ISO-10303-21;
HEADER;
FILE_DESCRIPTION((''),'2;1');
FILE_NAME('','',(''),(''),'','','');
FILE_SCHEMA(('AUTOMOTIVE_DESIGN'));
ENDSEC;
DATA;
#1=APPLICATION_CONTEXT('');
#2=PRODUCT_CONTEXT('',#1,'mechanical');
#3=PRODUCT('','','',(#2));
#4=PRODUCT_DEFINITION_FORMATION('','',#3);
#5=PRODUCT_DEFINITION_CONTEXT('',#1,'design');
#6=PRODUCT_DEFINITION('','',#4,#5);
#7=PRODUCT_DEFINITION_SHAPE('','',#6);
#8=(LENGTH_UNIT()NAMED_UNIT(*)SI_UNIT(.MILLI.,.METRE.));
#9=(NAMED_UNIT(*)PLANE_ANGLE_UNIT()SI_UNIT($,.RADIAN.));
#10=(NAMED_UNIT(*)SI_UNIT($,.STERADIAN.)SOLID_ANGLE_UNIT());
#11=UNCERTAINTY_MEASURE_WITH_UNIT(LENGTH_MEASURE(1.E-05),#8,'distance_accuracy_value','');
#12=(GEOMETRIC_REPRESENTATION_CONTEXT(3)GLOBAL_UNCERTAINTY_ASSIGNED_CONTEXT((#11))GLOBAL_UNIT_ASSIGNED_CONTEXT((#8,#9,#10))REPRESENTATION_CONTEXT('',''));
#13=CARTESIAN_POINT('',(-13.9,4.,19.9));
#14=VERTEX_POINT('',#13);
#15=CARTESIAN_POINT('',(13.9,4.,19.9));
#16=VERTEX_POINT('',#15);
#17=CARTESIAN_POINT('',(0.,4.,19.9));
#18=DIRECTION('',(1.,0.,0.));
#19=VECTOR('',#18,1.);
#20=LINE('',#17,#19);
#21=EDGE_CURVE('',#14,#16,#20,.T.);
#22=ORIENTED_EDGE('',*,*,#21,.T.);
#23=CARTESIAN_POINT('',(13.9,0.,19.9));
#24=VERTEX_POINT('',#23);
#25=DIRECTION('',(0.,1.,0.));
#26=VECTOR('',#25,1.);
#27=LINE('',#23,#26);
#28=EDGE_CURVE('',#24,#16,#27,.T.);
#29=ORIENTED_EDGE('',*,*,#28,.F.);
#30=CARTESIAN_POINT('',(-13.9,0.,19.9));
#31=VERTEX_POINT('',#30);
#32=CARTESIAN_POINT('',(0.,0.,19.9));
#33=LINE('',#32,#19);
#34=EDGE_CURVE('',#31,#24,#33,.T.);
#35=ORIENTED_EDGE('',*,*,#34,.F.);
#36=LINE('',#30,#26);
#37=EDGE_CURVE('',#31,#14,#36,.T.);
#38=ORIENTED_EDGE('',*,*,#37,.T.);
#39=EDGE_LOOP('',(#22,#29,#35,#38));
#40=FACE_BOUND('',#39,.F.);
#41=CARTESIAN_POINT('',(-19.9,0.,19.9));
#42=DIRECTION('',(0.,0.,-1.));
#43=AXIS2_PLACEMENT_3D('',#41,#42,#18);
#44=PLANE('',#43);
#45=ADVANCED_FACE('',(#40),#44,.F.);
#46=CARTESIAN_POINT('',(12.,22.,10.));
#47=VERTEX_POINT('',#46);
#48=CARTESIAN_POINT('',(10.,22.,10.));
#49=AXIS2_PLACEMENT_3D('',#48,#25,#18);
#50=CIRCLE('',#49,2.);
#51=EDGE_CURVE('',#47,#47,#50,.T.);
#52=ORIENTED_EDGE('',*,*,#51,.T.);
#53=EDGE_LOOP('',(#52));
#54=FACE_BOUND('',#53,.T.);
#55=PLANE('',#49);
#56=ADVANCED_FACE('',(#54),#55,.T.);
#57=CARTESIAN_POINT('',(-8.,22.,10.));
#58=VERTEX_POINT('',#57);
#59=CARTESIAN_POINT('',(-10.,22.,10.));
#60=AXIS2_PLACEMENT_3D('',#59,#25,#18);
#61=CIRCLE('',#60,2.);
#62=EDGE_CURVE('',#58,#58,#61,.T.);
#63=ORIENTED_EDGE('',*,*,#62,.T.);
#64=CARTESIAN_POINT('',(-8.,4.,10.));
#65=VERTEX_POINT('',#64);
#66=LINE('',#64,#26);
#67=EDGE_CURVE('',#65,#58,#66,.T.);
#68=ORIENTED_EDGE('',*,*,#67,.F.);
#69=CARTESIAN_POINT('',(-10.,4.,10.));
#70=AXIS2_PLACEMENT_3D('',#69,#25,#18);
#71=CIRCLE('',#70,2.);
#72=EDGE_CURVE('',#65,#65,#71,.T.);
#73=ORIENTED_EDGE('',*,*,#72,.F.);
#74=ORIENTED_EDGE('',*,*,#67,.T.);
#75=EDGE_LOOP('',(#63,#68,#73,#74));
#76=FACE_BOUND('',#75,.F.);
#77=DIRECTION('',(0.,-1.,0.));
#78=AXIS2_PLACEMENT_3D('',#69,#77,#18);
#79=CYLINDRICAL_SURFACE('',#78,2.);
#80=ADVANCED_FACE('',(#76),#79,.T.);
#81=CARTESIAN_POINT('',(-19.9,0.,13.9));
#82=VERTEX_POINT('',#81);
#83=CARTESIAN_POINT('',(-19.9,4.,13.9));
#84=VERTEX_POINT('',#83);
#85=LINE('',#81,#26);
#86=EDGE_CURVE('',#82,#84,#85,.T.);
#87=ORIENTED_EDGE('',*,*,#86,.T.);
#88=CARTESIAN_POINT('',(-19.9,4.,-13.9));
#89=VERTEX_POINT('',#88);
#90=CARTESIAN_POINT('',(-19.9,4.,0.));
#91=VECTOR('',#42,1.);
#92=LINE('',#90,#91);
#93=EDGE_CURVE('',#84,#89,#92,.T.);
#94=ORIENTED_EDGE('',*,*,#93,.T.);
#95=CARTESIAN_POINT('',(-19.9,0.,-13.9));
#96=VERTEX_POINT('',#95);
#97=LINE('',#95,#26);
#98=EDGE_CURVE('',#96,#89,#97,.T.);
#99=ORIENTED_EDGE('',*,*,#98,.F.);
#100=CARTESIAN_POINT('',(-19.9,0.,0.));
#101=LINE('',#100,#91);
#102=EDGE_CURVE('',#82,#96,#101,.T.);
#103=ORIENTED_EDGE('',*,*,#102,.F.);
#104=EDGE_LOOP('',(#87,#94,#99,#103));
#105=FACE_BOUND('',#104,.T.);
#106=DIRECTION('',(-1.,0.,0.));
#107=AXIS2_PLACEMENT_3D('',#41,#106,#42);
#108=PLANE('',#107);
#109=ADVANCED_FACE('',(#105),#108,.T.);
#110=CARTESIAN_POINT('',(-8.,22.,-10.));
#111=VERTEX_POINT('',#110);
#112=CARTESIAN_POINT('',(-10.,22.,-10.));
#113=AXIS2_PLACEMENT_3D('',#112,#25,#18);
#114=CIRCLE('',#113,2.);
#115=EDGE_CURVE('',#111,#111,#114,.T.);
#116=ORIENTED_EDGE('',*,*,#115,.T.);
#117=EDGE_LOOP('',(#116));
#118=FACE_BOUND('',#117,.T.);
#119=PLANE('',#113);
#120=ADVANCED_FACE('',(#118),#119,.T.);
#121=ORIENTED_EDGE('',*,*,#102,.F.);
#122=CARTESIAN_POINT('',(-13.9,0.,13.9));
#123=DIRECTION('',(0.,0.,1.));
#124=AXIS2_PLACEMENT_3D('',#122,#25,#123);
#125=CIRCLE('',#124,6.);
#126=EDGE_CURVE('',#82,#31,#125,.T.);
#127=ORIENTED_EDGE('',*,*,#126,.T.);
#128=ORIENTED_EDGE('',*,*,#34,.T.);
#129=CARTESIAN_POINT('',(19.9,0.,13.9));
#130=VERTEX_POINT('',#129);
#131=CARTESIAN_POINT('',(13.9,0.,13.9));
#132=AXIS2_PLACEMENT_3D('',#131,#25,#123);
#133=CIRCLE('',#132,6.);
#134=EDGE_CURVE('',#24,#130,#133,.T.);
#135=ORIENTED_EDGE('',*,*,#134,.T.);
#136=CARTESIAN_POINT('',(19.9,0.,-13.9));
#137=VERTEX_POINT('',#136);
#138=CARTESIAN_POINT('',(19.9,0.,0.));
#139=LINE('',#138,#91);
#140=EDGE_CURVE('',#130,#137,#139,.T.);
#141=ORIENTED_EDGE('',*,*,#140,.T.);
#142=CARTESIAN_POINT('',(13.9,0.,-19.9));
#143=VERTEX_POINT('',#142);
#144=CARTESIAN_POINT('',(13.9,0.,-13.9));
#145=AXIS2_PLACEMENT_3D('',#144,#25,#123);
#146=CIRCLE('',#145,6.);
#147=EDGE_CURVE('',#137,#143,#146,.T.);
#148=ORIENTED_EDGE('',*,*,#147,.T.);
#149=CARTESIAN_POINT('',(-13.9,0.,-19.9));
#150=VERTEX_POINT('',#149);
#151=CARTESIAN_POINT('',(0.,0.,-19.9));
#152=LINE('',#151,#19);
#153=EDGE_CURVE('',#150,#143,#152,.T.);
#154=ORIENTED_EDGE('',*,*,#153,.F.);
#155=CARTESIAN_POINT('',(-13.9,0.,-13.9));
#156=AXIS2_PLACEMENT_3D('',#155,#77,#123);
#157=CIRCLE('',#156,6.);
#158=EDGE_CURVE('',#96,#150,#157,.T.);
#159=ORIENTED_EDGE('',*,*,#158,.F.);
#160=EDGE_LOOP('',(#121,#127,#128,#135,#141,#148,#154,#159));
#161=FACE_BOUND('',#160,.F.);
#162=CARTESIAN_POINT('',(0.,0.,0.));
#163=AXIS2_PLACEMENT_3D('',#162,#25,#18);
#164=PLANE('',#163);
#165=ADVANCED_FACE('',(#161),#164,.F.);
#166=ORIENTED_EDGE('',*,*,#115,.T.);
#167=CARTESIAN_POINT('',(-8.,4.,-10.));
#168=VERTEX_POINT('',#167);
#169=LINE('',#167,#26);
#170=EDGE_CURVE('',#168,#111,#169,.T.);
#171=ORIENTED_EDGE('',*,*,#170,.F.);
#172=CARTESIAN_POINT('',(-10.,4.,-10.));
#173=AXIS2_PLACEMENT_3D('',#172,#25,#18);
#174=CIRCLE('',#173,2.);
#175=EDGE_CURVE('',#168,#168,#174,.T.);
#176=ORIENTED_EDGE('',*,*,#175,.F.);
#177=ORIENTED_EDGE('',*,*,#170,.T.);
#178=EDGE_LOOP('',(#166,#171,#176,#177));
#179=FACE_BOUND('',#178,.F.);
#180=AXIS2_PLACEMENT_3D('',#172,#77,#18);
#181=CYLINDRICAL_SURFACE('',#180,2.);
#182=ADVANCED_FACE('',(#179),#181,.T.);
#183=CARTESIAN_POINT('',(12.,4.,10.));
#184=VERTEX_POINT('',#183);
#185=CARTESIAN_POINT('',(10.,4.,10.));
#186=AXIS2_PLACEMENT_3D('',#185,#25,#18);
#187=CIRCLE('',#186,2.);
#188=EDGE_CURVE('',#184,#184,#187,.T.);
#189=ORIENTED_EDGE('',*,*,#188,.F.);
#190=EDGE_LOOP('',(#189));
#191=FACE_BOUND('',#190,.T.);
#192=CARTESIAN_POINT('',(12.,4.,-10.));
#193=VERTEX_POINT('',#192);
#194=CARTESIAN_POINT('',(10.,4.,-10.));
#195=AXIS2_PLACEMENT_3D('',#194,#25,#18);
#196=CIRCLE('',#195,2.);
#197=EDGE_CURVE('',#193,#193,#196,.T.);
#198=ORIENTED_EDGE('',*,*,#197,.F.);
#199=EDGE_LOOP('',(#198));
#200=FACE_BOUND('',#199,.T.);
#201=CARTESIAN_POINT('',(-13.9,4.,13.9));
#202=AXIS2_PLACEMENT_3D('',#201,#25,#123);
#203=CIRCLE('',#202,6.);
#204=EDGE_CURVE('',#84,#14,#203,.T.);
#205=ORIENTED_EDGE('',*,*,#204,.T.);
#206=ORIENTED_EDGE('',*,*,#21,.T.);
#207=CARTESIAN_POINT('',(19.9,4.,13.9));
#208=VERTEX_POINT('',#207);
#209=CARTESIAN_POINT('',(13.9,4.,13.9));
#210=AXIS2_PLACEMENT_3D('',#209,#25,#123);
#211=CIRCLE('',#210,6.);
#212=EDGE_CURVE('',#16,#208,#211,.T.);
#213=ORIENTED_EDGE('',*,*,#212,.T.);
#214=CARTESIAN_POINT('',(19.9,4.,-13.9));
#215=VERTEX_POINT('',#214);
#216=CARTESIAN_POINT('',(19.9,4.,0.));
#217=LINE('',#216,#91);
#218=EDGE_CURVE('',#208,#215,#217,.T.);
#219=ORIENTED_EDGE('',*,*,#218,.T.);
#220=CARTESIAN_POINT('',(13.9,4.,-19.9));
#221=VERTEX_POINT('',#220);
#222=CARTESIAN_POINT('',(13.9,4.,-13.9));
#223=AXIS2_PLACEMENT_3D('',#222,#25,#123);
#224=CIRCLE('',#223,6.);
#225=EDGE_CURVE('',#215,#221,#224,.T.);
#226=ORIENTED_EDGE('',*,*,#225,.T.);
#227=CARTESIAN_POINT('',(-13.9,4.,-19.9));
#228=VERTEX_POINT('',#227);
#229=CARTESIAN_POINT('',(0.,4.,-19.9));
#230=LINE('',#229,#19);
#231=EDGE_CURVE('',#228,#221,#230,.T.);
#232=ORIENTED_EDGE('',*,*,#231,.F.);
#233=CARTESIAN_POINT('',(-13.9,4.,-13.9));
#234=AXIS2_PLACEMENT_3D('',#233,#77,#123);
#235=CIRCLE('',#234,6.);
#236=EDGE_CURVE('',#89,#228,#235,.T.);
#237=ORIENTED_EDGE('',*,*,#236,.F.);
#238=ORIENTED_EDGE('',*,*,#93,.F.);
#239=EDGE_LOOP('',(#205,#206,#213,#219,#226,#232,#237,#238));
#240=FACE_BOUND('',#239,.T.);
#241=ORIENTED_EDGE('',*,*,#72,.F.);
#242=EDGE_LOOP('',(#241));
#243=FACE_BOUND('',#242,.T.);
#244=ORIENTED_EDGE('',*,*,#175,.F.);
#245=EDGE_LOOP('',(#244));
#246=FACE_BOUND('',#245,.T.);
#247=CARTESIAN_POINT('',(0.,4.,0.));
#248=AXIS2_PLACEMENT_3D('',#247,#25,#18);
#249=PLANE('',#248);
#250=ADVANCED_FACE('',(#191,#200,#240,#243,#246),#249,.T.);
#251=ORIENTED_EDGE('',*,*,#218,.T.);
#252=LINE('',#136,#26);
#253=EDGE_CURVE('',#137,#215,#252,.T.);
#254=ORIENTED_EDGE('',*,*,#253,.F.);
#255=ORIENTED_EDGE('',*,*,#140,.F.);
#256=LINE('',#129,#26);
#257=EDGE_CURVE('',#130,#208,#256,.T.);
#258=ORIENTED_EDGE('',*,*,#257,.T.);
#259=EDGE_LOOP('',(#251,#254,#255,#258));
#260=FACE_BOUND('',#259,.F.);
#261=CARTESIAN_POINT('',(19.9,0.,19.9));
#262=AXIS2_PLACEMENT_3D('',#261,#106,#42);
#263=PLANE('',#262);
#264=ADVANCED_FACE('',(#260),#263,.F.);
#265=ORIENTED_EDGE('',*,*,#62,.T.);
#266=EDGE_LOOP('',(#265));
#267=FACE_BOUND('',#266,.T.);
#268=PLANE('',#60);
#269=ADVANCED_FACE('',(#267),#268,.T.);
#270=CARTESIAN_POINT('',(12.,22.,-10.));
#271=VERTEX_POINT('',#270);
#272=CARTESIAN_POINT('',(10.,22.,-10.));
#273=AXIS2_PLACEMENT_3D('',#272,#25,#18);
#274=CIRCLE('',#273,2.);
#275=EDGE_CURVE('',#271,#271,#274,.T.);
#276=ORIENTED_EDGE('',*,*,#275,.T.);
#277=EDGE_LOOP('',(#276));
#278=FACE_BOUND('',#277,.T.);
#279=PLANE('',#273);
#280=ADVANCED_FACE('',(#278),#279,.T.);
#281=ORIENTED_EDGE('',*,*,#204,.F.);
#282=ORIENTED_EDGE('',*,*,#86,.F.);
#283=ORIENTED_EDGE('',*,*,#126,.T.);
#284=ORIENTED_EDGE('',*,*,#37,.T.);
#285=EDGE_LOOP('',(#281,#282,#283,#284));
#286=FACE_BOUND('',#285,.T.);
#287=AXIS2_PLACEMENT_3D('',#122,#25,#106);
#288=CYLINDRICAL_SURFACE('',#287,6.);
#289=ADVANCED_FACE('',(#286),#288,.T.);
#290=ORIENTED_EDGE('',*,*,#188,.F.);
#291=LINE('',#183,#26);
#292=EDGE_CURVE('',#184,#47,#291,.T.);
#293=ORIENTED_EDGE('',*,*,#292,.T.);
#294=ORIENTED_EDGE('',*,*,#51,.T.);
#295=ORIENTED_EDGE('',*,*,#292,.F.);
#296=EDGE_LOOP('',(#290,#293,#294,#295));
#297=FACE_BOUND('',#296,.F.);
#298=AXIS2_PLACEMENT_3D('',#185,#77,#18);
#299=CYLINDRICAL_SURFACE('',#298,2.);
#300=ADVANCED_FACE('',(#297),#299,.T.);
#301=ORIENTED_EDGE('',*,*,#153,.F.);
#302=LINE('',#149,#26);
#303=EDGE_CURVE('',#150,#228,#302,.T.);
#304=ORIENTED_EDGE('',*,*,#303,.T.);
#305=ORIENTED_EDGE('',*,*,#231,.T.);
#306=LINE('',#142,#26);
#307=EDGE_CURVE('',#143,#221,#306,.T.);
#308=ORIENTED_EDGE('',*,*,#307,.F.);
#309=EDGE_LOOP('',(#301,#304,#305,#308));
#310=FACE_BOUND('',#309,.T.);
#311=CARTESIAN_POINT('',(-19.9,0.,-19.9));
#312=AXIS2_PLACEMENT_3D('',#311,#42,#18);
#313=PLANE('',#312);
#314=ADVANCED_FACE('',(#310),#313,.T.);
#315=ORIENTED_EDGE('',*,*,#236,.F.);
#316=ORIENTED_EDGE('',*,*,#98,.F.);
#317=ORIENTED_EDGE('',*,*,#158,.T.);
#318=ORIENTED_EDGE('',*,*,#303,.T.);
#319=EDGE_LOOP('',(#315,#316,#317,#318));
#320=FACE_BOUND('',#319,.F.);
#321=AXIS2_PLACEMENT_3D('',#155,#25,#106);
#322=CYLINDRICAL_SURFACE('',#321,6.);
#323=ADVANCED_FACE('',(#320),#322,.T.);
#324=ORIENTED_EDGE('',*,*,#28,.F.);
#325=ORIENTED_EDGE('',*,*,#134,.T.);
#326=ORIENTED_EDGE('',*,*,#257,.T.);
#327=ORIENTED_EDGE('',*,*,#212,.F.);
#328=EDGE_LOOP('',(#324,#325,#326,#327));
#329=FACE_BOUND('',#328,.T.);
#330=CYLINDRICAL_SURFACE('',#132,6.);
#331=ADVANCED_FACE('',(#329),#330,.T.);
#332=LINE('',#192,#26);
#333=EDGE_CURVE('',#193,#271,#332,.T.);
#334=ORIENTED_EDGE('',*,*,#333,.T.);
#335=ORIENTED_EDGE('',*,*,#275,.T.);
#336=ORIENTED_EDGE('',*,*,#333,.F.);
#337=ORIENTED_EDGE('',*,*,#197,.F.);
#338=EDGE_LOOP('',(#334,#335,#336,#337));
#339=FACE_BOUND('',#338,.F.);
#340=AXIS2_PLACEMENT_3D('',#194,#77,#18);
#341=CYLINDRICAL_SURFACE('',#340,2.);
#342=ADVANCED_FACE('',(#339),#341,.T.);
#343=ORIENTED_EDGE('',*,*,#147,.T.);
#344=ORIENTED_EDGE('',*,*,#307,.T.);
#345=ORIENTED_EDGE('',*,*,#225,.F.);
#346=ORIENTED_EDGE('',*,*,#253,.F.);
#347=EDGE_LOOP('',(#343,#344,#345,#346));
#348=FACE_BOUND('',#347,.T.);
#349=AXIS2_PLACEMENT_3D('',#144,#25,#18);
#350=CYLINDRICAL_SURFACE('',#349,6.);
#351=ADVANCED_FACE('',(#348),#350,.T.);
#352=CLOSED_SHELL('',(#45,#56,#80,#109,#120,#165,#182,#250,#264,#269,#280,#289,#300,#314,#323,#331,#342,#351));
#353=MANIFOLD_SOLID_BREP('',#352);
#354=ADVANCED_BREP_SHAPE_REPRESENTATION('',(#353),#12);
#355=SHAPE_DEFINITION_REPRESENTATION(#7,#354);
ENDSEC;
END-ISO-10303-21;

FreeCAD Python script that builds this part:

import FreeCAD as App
import Part
import Sketcher
from FreeCAD import Vector


def edges_at(feature, points):
    """Names of the edges that pass closest to the given points."""
    edges = feature.Shape.Edges
    near = lambda p: min(range(len(edges)), key=lambda i: edges[i].distToShape(Part.Vertex(*p))[0])
    return sorted({f"Edge{near(p) + 1}" for p in points})

doc = App.newDocument("Part")
body = doc.addObject("PartDesign::Body", "Body")

sketch1 = doc.addObject("Sketcher::SketchObject", "Sketch")
body.addObject(sketch1)
sketch1.AttachmentSupport = (doc.XZ_Plane, [""])
sketch1.MapMode = "FlatFace"
sketch1.addGeometry(Part.LineSegment(Vector(-20, -20, 0), Vector(-20, 20, 0)), False)
sketch1.addGeometry(Part.LineSegment(Vector(-20, 20, 0), Vector(20, 20, 0)), False)
sketch1.addGeometry(Part.LineSegment(Vector(20, 20, 0), Vector(20, -20, 0)), False)
sketch1.addGeometry(Part.LineSegment(Vector(20, -20, 0), Vector(-20, -20, 0)), False)
sketch1.addConstraint(Sketcher.Constraint("Coincident", 0, 2, 1, 1))
sketch1.addConstraint(Sketcher.Constraint("Coincident", 1, 2, 2, 1))
sketch1.addConstraint(Sketcher.Constraint("Coincident", 2, 2, 3, 1))
sketch1.addConstraint(Sketcher.Constraint("Coincident", 3, 2, 0, 1))
sketch1.addConstraint(Sketcher.Constraint("Vertical", 0))
sketch1.addConstraint(Sketcher.Constraint("Horizontal", 1))
sketch1.addConstraint(Sketcher.Constraint("Vertical", 2))
sketch1.addConstraint(Sketcher.Constraint("Horizontal", 3))
sketch1.addConstraint(Sketcher.Constraint("Symmetric", 0, 2, 2, 2, -1, 1))
sketch1.addConstraint(Sketcher.Constraint("Equal", 3, 0))
sketch1.addConstraint(Sketcher.Constraint("DistanceX", 1, 1, 1, 2, 39.8))
pad1 = doc.addObject("PartDesign::Pad", "Pad")
body.addObject(pad1)
pad1.Profile = sketch1
pad1.Length = 4
pad1.Reversed = True
doc.recompute()

fillet = doc.addObject("PartDesign::Fillet", "Fillet")
body.addObject(fillet)
fillet.Base = (pad1, edges_at(pad1, [
    (19.9, 2, 19.9),
    (-19.9, 2, 19.9),
    (-19.9, 2, -19.9),
    (19.9, 2, -19.9),
]))
fillet.Radius = 6

sketch2 = doc.addObject("Sketcher::SketchObject", "Sketch001")
body.addObject(sketch2)
sketch2.AttachmentSupport = (doc.XZ_Plane, [""])
sketch2.MapMode = "FlatFace"
sketch2.AttachmentOffset = App.Placement(Vector(0, 0, -4), App.Rotation())
sketch2.addGeometry(Part.Circle(Vector(-10, -10, 0), Vector(0, 0, 1), 2), False)
sketch2.addGeometry(Part.Circle(Vector(10, -10, 0), Vector(0, 0, 1), 2), False)
sketch2.addGeometry(Part.Circle(Vector(10, 10, 0), Vector(0, 0, 1), 2), False)
sketch2.addGeometry(Part.Circle(Vector(-10, 10, 0), Vector(0, 0, 1), 2), False)
sketch2.addConstraint(Sketcher.Constraint("Equal", 0, 1))
sketch2.addConstraint(Sketcher.Constraint("Equal", 1, 2))
sketch2.addConstraint(Sketcher.Constraint("Equal", 2, 3))
sketch2.addConstraint(Sketcher.Constraint("Symmetric", 0, 3, 2, 3, -1, 1))
sketch2.addConstraint(Sketcher.Constraint("Symmetric", 1, 3, 3, 3, -1, 1))
sketch2.addConstraint(Sketcher.Constraint("Symmetric", 0, 3, 1, 3, -2))
sketch2.addConstraint(Sketcher.Constraint("Diameter", 0, 4.0))
sketch2.addConstraint(Sketcher.Constraint("DistanceX", 0, 3, -1, 1, 10.0))
sketch2.addConstraint(Sketcher.Constraint("DistanceY", 0, 3, -1, 1, 10.0))
pad2 = doc.addObject("PartDesign::Pad", "Pad001")
body.addObject(pad2)
pad2.Profile = sketch2
pad2.Length = 18
pad2.Reversed = True

doc.recompute()
